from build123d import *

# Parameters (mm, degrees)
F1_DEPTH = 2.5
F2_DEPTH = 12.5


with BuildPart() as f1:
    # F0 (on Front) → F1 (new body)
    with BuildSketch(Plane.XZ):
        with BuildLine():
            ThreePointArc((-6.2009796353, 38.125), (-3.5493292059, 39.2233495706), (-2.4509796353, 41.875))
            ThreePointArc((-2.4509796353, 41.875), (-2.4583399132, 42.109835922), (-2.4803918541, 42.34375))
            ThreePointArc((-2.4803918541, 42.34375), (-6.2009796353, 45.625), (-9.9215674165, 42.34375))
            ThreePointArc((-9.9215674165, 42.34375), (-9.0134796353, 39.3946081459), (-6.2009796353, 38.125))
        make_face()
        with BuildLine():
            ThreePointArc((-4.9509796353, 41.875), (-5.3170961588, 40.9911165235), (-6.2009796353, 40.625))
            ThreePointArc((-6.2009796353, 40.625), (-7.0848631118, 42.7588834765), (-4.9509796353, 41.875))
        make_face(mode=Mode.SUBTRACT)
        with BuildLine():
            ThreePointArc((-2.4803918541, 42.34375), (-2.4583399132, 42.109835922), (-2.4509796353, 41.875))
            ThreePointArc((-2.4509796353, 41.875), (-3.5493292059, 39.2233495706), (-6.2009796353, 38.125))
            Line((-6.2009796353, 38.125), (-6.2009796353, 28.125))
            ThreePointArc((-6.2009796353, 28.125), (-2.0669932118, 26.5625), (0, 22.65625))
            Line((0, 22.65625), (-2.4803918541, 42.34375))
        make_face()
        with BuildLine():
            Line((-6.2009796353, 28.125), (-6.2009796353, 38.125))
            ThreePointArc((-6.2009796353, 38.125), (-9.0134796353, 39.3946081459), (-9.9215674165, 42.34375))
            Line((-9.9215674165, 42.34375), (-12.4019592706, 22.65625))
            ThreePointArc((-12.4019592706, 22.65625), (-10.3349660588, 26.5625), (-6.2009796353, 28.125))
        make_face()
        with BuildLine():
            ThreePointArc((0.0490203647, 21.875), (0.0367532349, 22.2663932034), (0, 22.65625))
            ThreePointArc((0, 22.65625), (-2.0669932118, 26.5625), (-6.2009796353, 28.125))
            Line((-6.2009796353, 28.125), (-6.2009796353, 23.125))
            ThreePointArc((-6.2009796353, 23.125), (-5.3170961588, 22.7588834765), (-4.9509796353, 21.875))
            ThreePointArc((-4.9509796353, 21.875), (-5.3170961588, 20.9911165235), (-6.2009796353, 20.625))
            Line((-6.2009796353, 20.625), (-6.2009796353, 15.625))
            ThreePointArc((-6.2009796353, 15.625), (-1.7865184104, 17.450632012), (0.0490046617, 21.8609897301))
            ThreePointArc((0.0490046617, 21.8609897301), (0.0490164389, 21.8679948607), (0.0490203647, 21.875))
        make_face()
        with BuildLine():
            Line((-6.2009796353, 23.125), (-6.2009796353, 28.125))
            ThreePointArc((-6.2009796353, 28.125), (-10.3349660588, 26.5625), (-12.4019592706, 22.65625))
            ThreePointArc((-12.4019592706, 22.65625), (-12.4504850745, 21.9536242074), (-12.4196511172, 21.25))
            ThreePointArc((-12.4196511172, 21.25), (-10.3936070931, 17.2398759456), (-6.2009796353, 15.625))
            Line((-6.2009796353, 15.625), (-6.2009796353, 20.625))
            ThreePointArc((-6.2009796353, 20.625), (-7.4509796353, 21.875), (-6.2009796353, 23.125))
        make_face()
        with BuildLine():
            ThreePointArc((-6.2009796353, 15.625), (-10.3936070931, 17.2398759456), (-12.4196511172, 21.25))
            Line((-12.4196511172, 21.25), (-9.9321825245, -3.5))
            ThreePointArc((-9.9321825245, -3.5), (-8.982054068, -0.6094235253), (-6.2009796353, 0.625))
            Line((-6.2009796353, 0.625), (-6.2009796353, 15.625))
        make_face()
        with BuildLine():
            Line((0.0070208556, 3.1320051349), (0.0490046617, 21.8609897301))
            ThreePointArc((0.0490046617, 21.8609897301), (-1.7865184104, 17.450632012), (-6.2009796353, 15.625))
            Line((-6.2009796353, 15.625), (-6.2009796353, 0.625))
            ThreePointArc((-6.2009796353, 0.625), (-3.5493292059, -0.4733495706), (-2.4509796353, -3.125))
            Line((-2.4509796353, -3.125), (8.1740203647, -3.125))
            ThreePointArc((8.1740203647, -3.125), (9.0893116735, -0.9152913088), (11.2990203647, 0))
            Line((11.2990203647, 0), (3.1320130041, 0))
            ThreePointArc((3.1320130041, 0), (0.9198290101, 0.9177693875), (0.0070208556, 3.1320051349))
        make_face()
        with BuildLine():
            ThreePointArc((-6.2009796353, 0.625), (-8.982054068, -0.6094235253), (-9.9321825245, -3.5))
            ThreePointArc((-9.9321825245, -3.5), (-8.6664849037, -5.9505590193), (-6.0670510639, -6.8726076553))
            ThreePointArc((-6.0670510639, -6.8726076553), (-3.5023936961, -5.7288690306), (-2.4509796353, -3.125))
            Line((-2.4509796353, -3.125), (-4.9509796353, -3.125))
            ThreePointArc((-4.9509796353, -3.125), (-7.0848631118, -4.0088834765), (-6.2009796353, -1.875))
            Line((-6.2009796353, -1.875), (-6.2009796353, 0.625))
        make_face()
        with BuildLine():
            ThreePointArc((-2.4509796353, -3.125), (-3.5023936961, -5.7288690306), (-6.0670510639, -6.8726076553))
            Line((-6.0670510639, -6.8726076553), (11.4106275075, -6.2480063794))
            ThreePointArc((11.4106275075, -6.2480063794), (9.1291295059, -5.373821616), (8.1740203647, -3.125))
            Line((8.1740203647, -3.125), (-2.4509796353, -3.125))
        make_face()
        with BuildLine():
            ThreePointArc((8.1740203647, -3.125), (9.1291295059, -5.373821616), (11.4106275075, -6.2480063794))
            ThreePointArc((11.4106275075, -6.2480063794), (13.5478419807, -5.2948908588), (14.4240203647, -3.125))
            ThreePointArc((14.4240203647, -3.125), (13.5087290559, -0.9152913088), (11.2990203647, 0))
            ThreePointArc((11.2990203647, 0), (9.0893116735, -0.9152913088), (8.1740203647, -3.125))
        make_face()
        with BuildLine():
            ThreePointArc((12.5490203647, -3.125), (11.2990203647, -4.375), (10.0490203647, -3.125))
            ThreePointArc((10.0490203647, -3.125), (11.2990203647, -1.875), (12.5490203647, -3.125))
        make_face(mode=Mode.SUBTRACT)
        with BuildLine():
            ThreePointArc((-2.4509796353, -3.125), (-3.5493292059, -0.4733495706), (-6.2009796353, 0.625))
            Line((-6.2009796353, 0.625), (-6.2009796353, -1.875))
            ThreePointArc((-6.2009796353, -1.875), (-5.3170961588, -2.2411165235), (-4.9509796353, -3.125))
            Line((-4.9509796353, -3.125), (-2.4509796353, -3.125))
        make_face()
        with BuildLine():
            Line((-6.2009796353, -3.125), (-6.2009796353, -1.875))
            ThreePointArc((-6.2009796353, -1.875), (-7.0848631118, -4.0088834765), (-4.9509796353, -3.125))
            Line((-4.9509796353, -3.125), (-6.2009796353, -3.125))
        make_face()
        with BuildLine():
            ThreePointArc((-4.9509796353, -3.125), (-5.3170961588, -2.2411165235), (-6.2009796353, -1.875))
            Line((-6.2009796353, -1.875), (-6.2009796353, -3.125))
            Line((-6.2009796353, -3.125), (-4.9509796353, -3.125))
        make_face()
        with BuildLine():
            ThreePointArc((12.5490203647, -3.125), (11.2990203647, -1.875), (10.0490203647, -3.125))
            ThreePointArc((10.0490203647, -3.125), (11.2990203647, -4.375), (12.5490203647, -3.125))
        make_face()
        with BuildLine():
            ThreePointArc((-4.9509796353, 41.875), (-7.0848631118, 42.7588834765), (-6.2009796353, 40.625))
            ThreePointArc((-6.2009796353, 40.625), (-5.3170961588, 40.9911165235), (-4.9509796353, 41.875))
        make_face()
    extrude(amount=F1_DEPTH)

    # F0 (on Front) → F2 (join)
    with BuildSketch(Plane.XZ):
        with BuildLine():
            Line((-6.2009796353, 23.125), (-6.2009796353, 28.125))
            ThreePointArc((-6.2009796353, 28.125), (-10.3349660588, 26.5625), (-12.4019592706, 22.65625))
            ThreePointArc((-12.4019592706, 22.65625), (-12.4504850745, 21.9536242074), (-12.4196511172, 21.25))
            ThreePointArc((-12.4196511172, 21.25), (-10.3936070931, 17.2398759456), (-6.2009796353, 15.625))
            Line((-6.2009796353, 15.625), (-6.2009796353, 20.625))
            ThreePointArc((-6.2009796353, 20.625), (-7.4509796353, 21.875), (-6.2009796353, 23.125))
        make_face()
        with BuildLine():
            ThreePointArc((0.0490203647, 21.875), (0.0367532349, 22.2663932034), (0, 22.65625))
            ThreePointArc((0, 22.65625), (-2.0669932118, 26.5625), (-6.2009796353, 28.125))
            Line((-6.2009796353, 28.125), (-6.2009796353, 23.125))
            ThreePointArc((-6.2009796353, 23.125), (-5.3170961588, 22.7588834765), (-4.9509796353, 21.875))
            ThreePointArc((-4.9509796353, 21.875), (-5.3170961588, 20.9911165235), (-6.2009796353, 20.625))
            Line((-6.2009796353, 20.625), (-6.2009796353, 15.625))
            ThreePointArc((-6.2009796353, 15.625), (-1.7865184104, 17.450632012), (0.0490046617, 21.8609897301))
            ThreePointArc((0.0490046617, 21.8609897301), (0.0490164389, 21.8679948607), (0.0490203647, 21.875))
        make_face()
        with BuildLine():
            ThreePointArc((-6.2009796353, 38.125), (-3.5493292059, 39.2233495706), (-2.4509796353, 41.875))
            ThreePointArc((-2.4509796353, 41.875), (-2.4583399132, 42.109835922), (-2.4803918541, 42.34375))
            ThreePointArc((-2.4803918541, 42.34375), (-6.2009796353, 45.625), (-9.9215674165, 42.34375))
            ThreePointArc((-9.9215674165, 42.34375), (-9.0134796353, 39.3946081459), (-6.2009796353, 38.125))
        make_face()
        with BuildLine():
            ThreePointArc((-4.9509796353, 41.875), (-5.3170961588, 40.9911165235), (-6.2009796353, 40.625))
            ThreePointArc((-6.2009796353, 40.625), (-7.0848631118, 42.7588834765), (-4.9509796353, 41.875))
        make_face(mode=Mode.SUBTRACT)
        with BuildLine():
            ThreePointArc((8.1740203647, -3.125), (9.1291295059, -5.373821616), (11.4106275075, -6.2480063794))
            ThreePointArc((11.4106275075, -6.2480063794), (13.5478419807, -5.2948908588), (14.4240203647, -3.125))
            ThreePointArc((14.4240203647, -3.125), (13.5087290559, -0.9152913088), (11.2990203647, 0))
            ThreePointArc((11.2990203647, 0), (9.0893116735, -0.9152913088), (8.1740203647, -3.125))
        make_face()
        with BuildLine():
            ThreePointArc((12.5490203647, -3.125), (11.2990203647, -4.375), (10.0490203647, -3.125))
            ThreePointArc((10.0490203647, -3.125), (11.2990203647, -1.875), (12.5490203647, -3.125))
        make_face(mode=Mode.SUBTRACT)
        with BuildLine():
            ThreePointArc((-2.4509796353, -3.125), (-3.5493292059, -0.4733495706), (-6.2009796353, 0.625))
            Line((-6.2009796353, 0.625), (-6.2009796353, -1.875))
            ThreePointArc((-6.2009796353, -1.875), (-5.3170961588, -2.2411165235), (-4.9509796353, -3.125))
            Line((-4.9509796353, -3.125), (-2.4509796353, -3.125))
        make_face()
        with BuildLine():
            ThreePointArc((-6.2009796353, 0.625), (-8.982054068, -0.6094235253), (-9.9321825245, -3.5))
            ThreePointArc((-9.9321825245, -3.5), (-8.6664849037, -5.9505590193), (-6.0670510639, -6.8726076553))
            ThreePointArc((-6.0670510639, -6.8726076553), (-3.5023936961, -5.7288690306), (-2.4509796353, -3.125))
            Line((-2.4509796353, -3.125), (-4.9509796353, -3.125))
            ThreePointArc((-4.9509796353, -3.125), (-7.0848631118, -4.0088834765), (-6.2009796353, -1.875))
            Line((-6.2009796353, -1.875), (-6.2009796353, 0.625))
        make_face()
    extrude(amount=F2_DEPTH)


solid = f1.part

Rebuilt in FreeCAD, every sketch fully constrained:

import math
import FreeCAD as App
import Part
import Sketcher

V = App.Vector
Q = App.Units.Quantity

doc = App.newDocument("Part")
body = doc.addObject("PartDesign::Body", "Body")

# Sketch on XZ plane
sketch1 = body.newObject("Sketcher::SketchObject", "Sketch")
sketch1.AttachmentSupport = (doc.getObject("XZ_Plane"), [""])
sketch1.MapMode = "FlatFace"
sketch1.addGeometry([
    Part.ArcOfCircle(Part.Circle(V(-6.201, -3.125, 0), V(0, 0, 1), 3.75), math.radians(-174), math.radians(-88)),  # 0
    Part.LineSegment(V(-6.067, -6.873, 0), V(11.411, -6.248, 0)),  # 1
    Part.ArcOfCircle(Part.Circle(V(11.299, -3.125, 0), V(0, 0, 1), 3.125), math.radians(-88), math.radians(0)),  # 2
    Part.ArcOfCircle(Part.Circle(V(11.299, -3.125, 0), V(0, 0, 1), 3.125), math.radians(0), math.radians(90)),  # 3
    Part.LineSegment(V(11.299, 0, 0), V(3.132, 0, 0)),  # 4
    Part.ArcOfCircle(Part.Circle(V(3.132, 3.125, 0), V(0, 0, 1), 3.125), math.radians(180), math.radians(270)),  # 5
    Part.LineSegment(V(0.007, 3.132, 0), V(0.049, 21.861, 0)),  # 6
    Part.ArcOfCircle(Part.Circle(V(-6.201, 21.875, 0), V(0, 0, 1), 6.25), math.radians(-0.13), math.radians(0)),  # 7
    Part.ArcOfCircle(Part.Circle(V(-6.201, 21.875, 0), V(0, 0, 1), 6.25), math.radians(0), math.radians(7.18)),  # 8
    Part.LineSegment(V(0, 22.656, 0), V(-2.48, 42.344, 0)),  # 9
    Part.ArcOfCircle(Part.Circle(V(-6.201, 41.875, 0), V(0, 0, 1), 3.75), math.radians(7), math.radians(173)),  # 10
    Part.LineSegment(V(-9.922, 42.344, 0), V(-12.402, 22.656, 0)),  # 11
    Part.ArcOfCircle(Part.Circle(V(-6.201, 21.875, 0), V(0, 0, 1), 6.25), math.radians(172.82), math.radians(185.74)),  # 12
    Part.LineSegment(V(-12.42, 21.25, 0), V(-9.932, -3.5, 0)),  # 13
    Part.ArcOfCircle(Part.Circle(V(-6.201, 21.875, 0), V(0, 0, 1), 1.25), math.radians(0), math.radians(90)),  # 14
    Part.ArcOfCircle(Part.Circle(V(-6.201, 21.875, 0), V(0, 0, 1), 1.25), math.radians(-90), math.radians(0)),  # 15
    Part.ArcOfCircle(Part.Circle(V(-6.201, 21.875, 0), V(0, 0, 1), 1.25), math.radians(90), math.radians(270)),  # 16
], False)
sketch1.addConstraint([
    Sketcher.Constraint("Tangent", 0, 2, 1, 1),
    Sketcher.Constraint("Tangent", 1, 2, 2, 1),
    Sketcher.Constraint("Tangent", 2, 2, 3, 1),
    Sketcher.Constraint("Tangent", 3, 2, 4, 1),
    Sketcher.Constraint("Tangent", 4, 2, 5, 2),
    Sketcher.Constraint("Tangent", 5, 1, 6, 1),
    Sketcher.Constraint("Tangent", 6, 2, 7, 1),
    Sketcher.Constraint("Tangent", 7, 2, 8, 1),
    Sketcher.Constraint("Tangent", 8, 2, 9, 1),
    Sketcher.Constraint("Tangent", 9, 2, 10, 1),
    Sketcher.Constraint("Tangent", 10, 2, 11, 1),
    Sketcher.Constraint("Tangent", 11, 2, 12, 1),
    Sketcher.Constraint("Tangent", 12, 2, 13, 1),
    Sketcher.Constraint("Tangent", 13, 2, 0, 1),
    Sketcher.Constraint("Tangent", 14, 1, 15, 2),
    Sketcher.Constraint("Tangent", 15, 1, 16, 2),
    Sketcher.Constraint("Tangent", 16, 1, 14, 2),
    Sketcher.Constraint("Horizontal", 4),
    Sketcher.Constraint("Coincident", 12, 3, 8, 3),
    Sketcher.Constraint("Coincident", 14, 3, 8, 3),
    Sketcher.Constraint("Equal", 2, 3),
    Sketcher.Constraint("Equal", 3, 5),
    Sketcher.Constraint("Equal", 0, 10),
    Sketcher.Constraint("Equal", 8, 12),
    Sketcher.Constraint("PointOnObject", 3, 2, -1),
    Sketcher.Constraint("PointOnObject", 8, 2, -2),
    Sketcher.Constraint("Horizontal", 0, 3, 2, 3),
    Sketcher.Constraint("Horizontal", 3, 3, 2, 2),
    Sketcher.Constraint("Horizontal", 16, 3, 7, 2),
    Sketcher.Constraint("Horizontal", 9, 2, 10, 2),
    Sketcher.Constraint("Horizontal", 7, 2, 14, 1),
    Sketcher.Constraint("Vertical", 0, 3, 8, 3),
    Sketcher.Constraint("Vertical", 16, 3, 15, 1),
    Sketcher.Constraint("Vertical", 15, 1, 16, 1),
    Sketcher.Constraint("Radius", 0, Q("3.75 mm")),
    Sketcher.Constraint("Radius", 8, Q("6.25 mm")),
    Sketcher.Constraint("Radius", 14, Q("1.25 mm")),
    Sketcher.Constraint("Radius", 2, Q("3.125 mm")),
    Sketcher.Constraint("DistanceY", 0, 3, 7, 3, Q("25 mm")),
    Sketcher.Constraint("DistanceY", 7, 3, 10, 3, Q("20 mm")),
    Sketcher.Constraint("DistanceX", 0, 3, 2, 3, Q("17.5 mm")),
    Sketcher.Constraint("Radius", 7, Q("6.250091 mm")),
    Sketcher.Constraint("DistanceX", 0, 3, 5, 1, Q("6.208 mm")),
])
pad1 = body.newObject("PartDesign::Pad", "Pad")
pad1.Profile = sketch1
pad1.Length = 2.5

# Sketch on XZ plane
sketch2 = body.newObject("Sketcher::SketchObject", "Sketch001")
sketch2.AttachmentSupport = (doc.getObject("XZ_Plane"), [""])
sketch2.MapMode = "FlatFace"
sketch2.addGeometry([
    Part.ArcOfCircle(Part.Circle(V(-6.20098, 21.875, 0), V(0, 0, 1), 6.25), math.radians(90), math.radians(172.819244)),  # 0
    Part.ArcOfCircle(Part.Circle(V(-6.20098, 21.875, 0), V(0, 0, 1), 6.25), math.radians(172.819244), math.radians(185.73917)),  # 1
    Part.ArcOfCircle(Part.Circle(V(-6.20098, 21.875, 0), V(0, 0, 1), 6.25), math.radians(-174.26083), math.radians(-90)),  # 2
    Part.ArcOfCircle(Part.Circle(V(-6.20098, 21.875, 0), V(0, 0, 1), 6.25), math.radians(-90), math.radians(-0.128437)),  # 3
    Part.ArcOfCircle(Part.Circle(V(-6.20107, 21.875, 0), V(0, 0, 1), 6.250091), math.radians(-0.128436), math.radians(-0.000001)),  # 4
    Part.ArcOfCircle(Part.Circle(V(-6.20098, 21.875, 0), V(0, 0, 1), 6.25), math.radians(0), math.radians(7.180756)),  # 5
    Part.ArcOfCircle(Part.Circle(V(-6.20098, 21.875, 0), V(0, 0, 1), 6.25), math.radians(7.180756), math.radians(90)),  # 6
    Part.ArcOfCircle(Part.Circle(V(-6.20098, 21.875, 0), V(0, 0, 1), 1.25), math.radians(90), math.radians(270)),  # 7
    Part.ArcOfCircle(Part.Circle(V(-6.20098, 21.875, 0), V(0, 0, 1), 1.25), math.radians(0), math.radians(90)),  # 8
    Part.ArcOfCircle(Part.Circle(V(-6.20098, 21.875, 0), V(0, 0, 1), 1.25), math.radians(-90), math.radians(0)),  # 9
    Part.ArcOfCircle(Part.Circle(V(-6.20098, 41.875, 0), V(0, 0, 1), 3.75), math.radians(-90), math.radians(0)),  # 10
    Part.ArcOfCircle(Part.Circle(V(-6.20098, 41.875, 0), V(0, 0, 1), 3.75), math.radians(0), math.radians(7.180756)),  # 11
    Part.ArcOfCircle(Part.Circle(V(-6.20098, 41.875, 0), V(0, 0, 1), 3.75), math.radians(7.180756), math.radians(172.819244)),  # 12
    Part.ArcOfCircle(Part.Circle(V(-6.20098, 41.875, 0), V(0, 0, 1), 3.75), math.radians(172.819244), math.radians(270)),  # 13
    Part.ArcOfCircle(Part.Circle(V(-6.20098, 41.875, 0), V(0, 0, 1), 1.25), math.radians(0), math.radians(270)),  # 14
    Part.ArcOfCircle(Part.Circle(V(-6.20098, 41.875, 0), V(0, 0, 1), 1.25), math.radians(-90), math.radians(0)),  # 15
    Part.ArcOfCircle(Part.Circle(V(11.29902, -3.125, 0), V(0, 0, 1), 3.125), math.radians(180), math.radians(272.046713)),  # 16
    Part.ArcOfCircle(Part.Circle(V(11.29902, -3.125, 0), V(0, 0, 1), 3.125), math.radians(-87.953287), math.radians(0)),  # 17
    Part.ArcOfCircle(Part.Circle(V(11.29902, -3.125, 0), V(0, 0, 1), 3.125), math.radians(0), math.radians(90)),  # 18
    Part.ArcOfCircle(Part.Circle(V(11.29902, -3.125, 0), V(0, 0, 1), 3.125), math.radians(90), math.radians(180)),  # 19
    Part.Circle(V(11.29902, -3.125, 0), V(0, 0, 1), 1.25),  # 20
    Part.ArcOfCircle(Part.Circle(V(-6.20098, -3.125, 0), V(0, 0, 1), 3.75), math.radians(0), math.radians(90)),  # 21
    Part.ArcOfCircle(Part.Circle(V(-6.20098, -3.125, 0), V(0, 0, 1), 3.75), math.radians(90), math.radians(185.73917)),  # 22
    Part.ArcOfCircle(Part.Circle(V(-6.20098, -3.125, 0), V(0, 0, 1), 3.75), math.radians(-174.26083), math.radians(-87.953287)),  # 23
    Part.ArcOfCircle(Part.Circle(V(-6.20098, -3.125, 0), V(0, 0, 1), 3.75), math.radians(-87.953287), math.radians(0)),  # 24
    Part.ArcOfCircle(Part.Circle(V(-6.20098, -3.125, 0), V(0, 0, 1), 1.25), math.radians(0), math.radians(90)),  # 25
    Part.ArcOfCircle(Part.Circle(V(-6.20098, -3.125, 0), V(0, 0, 1), 1.25), math.radians(90), math.radians(360)),  # 26
], False)
sketch2.addConstraint([
    Sketcher.Constraint("Coincident", 0, 2, 1, 1),
    Sketcher.Constraint("Coincident", 1, 2, 2, 1),
    Sketcher.Constraint("Coincident", 2, 2, 3, 1),
    Sketcher.Constraint("Coincident", 3, 2, 4, 1),
    Sketcher.Constraint("Coincident", 4, 2, 5, 1),
    Sketcher.Constraint("Coincident", 5, 2, 6, 1),
    Sketcher.Constraint("Coincident", 6, 2, 0, 1),
    Sketcher.Constraint("Coincident", 7, 1, 8, 2),
    Sketcher.Constraint("Coincident", 8, 1, 9, 2),
    Sketcher.Constraint("Coincident", 9, 1, 7, 2),
    Sketcher.Constraint("Coincident", 10, 2, 11, 1),
    Sketcher.Constraint("Coincident", 11, 2, 12, 1),
    Sketcher.Constraint("Coincident", 12, 2, 13, 1),
    Sketcher.Constraint("Coincident", 13, 2, 10, 1),
    Sketcher.Constraint("Coincident", 14, 1, 15, 2),
    Sketcher.Constraint("Coincident", 15, 1, 14, 2),
    Sketcher.Constraint("Coincident", 16, 2, 17, 1),
    Sketcher.Constraint("Coincident", 17, 2, 18, 1),
    Sketcher.Constraint("Coincident", 18, 2, 19, 1),
    Sketcher.Constraint("Coincident", 19, 2, 16, 1),
    Sketcher.Constraint("Coincident", 21, 2, 22, 1),
    Sketcher.Constraint("Coincident", 22, 2, 23, 1),
    Sketcher.Constraint("Coincident", 23, 2, 24, 1),
    Sketcher.Constraint("Coincident", 24, 2, 21, 1),
    Sketcher.Constraint("Coincident", 25, 1, 26, 2),
    Sketcher.Constraint("Coincident", 26, 1, 25, 2),
    Sketcher.Constraint("Coincident", 1, 3, 0, 3),
    Sketcher.Constraint("Coincident", 2, 3, 0, 3),
    Sketcher.Constraint("Coincident", 3, 3, 0, 3),
    Sketcher.Constraint("Coincident", 5, 3, 0, 3),
    Sketcher.Constraint("Coincident", 7, 3, 0, 3),
    Sketcher.Constraint("Coincident", 8, 3, 0, 3),
    Sketcher.Constraint("Coincident", 11, 3, 10, 3),
    Sketcher.Constraint("Coincident", 12, 3, 10, 3),
    Sketcher.Constraint("Coincident", 14, 3, 10, 3),
    Sketcher.Constraint("Coincident", 17, 3, 16, 3),
    Sketcher.Constraint("Coincident", 18, 3, 16, 3),
    Sketcher.Constraint("Coincident", 20, 3, 16, 3),
    Sketcher.Constraint("Coincident", 22, 3, 21, 3),
    Sketcher.Constraint("Coincident", 23, 3, 21, 3),
    Sketcher.Constraint("Coincident", 25, 3, 21, 3),
    Sketcher.Constraint("PointOnObject", 5, 2, -2),
    Sketcher.Constraint("PointOnObject", 18, 2, -1),
    Sketcher.Constraint("Diameter", 20, Q("2.5 mm")),
    Sketcher.Constraint("Radius", 0, Q("6.25 mm")),
    Sketcher.Constraint("Radius", 5, Q("6.25 mm")),
    Sketcher.Constraint("Radius", 6, Q("6.25 mm")),
    Sketcher.Constraint("Radius", 7, Q("1.25 mm")),
    Sketcher.Constraint("Radius", 9, Q("1.25 mm")),
    Sketcher.Constraint("Radius", 10, Q("3.75 mm")),
    Sketcher.Constraint("Radius", 13, Q("3.75 mm")),
    Sketcher.Constraint("Radius", 14, Q("1.25 mm")),
    Sketcher.Constraint("Radius", 15, Q("1.25 mm")),
    Sketcher.Constraint("Radius", 21, Q("3.75 mm")),
    Sketcher.Constraint("Radius", 24, Q("3.75 mm")),
    Sketcher.Constraint("Radius", 25, Q("1.25 mm")),
    Sketcher.Constraint("Radius", 26, Q("1.25 mm")),
    Sketcher.Constraint("Radius", 16, Q("3.125 mm")),
    Sketcher.Constraint("Radius", 19, Q("3.125 mm")),
    Sketcher.Constraint("DistanceY", 4, 3, 10, 3, Q("20 mm")),
    Sketcher.Constraint("DistanceY", 16, 3, 0, 3, Q("25 mm")),
    Sketcher.Constraint("DistanceY", 22, 2, -1, 1, Q("3.5 mm")),
    Sketcher.Constraint("DistanceX", 0, 3, 16, 3, Q("17.5 mm")),
    Sketcher.Constraint("DistanceX", 21, 3, 16, 3, Q("17.5 mm")),
    Sketcher.Constraint("DistanceY", -1, 1, 1, 2, Q("21.25 mm")),
    Sketcher.Constraint("Radius", 4, Q("6.250091 mm")),
    Sketcher.Constraint("DistanceY", 21, 3, -1, 1, Q("3.125 mm")),
    Sketcher.Constraint("DistanceY", -1, 1, 4, 2, Q("21.875 mm")),
    Sketcher.Constraint("DistanceY", -1, 1, 8, 1, Q("21.875 mm")),
    Sketcher.Constraint("DistanceY", -1, 1, 10, 2, Q("41.875 mm")),
    Sketcher.Constraint("DistanceY", -1, 1, 14, 1, Q("41.875 mm")),
    Sketcher.Constraint("DistanceY", 17, 2, -1, 1, Q("3.125 mm")),
    Sketcher.Constraint("DistanceY", 19, 2, -1, 1, Q("3.125 mm")),
    Sketcher.Constraint("DistanceY", 24, 2, -1, 1, Q("3.125 mm")),
    Sketcher.Constraint("DistanceY", 25, 1, -1, 1, Q("3.125 mm")),
    Sketcher.Constraint("DistanceX", 0, 3, -1, 1, Q("6.20098 mm")),
    Sketcher.Constraint("DistanceX", 10, 3, -1, 1, Q("6.20098 mm")),
    Sketcher.Constraint("DistanceX", 0, 2, -1, 1, Q("12.401959 mm")),
    Sketcher.Constraint("DistanceX", 2, 2, -1, 1, Q("6.20098 mm")),
    Sketcher.Constraint("DistanceY", -1, 1, 3, 2, Q("21.86099 mm")),
    Sketcher.Constraint("DistanceX", 6, 2, -1, 1, Q("6.20098 mm")),
    Sketcher.Constraint("DistanceX", 7, 1, -1, 1, Q("6.20098 mm")),
    Sketcher.Constraint("DistanceX", 9, 1, -1, 1, Q("6.20098 mm")),
    Sketcher.Constraint("DistanceX", 11, 2, -1, 1, Q("2.480392 mm")),
    Sketcher.Constraint("DistanceY", -1, 1, 12, 2, Q("42.34375 mm")),
    Sketcher.Constraint("DistanceX", 13, 2, -1, 1, Q("6.20098 mm")),
    Sketcher.Constraint("DistanceX", 15, 1, -1, 1, Q("6.20098 mm")),
    Sketcher.Constraint("DistanceX", -1, 1, 18, 2, Q("11.29902 mm")),
    Sketcher.Constraint("DistanceX", 21, 2, -1, 1, Q("6.20098 mm")),
    Sketcher.Constraint("DistanceX", 23, 2, -1, 1, Q("6.067051 mm")),
    Sketcher.Constraint("DistanceX", 26, 1, -1, 1, Q("6.20098 mm")),
    Sketcher.Constraint("DistanceX", -1, 1, 16, 2, Q("11.410628 mm")),
])
pad2 = body.newObject("PartDesign::Pad", "Pad001")
pad2.Profile = sketch2
pad2.Length = 12.5

doc.recompute()
